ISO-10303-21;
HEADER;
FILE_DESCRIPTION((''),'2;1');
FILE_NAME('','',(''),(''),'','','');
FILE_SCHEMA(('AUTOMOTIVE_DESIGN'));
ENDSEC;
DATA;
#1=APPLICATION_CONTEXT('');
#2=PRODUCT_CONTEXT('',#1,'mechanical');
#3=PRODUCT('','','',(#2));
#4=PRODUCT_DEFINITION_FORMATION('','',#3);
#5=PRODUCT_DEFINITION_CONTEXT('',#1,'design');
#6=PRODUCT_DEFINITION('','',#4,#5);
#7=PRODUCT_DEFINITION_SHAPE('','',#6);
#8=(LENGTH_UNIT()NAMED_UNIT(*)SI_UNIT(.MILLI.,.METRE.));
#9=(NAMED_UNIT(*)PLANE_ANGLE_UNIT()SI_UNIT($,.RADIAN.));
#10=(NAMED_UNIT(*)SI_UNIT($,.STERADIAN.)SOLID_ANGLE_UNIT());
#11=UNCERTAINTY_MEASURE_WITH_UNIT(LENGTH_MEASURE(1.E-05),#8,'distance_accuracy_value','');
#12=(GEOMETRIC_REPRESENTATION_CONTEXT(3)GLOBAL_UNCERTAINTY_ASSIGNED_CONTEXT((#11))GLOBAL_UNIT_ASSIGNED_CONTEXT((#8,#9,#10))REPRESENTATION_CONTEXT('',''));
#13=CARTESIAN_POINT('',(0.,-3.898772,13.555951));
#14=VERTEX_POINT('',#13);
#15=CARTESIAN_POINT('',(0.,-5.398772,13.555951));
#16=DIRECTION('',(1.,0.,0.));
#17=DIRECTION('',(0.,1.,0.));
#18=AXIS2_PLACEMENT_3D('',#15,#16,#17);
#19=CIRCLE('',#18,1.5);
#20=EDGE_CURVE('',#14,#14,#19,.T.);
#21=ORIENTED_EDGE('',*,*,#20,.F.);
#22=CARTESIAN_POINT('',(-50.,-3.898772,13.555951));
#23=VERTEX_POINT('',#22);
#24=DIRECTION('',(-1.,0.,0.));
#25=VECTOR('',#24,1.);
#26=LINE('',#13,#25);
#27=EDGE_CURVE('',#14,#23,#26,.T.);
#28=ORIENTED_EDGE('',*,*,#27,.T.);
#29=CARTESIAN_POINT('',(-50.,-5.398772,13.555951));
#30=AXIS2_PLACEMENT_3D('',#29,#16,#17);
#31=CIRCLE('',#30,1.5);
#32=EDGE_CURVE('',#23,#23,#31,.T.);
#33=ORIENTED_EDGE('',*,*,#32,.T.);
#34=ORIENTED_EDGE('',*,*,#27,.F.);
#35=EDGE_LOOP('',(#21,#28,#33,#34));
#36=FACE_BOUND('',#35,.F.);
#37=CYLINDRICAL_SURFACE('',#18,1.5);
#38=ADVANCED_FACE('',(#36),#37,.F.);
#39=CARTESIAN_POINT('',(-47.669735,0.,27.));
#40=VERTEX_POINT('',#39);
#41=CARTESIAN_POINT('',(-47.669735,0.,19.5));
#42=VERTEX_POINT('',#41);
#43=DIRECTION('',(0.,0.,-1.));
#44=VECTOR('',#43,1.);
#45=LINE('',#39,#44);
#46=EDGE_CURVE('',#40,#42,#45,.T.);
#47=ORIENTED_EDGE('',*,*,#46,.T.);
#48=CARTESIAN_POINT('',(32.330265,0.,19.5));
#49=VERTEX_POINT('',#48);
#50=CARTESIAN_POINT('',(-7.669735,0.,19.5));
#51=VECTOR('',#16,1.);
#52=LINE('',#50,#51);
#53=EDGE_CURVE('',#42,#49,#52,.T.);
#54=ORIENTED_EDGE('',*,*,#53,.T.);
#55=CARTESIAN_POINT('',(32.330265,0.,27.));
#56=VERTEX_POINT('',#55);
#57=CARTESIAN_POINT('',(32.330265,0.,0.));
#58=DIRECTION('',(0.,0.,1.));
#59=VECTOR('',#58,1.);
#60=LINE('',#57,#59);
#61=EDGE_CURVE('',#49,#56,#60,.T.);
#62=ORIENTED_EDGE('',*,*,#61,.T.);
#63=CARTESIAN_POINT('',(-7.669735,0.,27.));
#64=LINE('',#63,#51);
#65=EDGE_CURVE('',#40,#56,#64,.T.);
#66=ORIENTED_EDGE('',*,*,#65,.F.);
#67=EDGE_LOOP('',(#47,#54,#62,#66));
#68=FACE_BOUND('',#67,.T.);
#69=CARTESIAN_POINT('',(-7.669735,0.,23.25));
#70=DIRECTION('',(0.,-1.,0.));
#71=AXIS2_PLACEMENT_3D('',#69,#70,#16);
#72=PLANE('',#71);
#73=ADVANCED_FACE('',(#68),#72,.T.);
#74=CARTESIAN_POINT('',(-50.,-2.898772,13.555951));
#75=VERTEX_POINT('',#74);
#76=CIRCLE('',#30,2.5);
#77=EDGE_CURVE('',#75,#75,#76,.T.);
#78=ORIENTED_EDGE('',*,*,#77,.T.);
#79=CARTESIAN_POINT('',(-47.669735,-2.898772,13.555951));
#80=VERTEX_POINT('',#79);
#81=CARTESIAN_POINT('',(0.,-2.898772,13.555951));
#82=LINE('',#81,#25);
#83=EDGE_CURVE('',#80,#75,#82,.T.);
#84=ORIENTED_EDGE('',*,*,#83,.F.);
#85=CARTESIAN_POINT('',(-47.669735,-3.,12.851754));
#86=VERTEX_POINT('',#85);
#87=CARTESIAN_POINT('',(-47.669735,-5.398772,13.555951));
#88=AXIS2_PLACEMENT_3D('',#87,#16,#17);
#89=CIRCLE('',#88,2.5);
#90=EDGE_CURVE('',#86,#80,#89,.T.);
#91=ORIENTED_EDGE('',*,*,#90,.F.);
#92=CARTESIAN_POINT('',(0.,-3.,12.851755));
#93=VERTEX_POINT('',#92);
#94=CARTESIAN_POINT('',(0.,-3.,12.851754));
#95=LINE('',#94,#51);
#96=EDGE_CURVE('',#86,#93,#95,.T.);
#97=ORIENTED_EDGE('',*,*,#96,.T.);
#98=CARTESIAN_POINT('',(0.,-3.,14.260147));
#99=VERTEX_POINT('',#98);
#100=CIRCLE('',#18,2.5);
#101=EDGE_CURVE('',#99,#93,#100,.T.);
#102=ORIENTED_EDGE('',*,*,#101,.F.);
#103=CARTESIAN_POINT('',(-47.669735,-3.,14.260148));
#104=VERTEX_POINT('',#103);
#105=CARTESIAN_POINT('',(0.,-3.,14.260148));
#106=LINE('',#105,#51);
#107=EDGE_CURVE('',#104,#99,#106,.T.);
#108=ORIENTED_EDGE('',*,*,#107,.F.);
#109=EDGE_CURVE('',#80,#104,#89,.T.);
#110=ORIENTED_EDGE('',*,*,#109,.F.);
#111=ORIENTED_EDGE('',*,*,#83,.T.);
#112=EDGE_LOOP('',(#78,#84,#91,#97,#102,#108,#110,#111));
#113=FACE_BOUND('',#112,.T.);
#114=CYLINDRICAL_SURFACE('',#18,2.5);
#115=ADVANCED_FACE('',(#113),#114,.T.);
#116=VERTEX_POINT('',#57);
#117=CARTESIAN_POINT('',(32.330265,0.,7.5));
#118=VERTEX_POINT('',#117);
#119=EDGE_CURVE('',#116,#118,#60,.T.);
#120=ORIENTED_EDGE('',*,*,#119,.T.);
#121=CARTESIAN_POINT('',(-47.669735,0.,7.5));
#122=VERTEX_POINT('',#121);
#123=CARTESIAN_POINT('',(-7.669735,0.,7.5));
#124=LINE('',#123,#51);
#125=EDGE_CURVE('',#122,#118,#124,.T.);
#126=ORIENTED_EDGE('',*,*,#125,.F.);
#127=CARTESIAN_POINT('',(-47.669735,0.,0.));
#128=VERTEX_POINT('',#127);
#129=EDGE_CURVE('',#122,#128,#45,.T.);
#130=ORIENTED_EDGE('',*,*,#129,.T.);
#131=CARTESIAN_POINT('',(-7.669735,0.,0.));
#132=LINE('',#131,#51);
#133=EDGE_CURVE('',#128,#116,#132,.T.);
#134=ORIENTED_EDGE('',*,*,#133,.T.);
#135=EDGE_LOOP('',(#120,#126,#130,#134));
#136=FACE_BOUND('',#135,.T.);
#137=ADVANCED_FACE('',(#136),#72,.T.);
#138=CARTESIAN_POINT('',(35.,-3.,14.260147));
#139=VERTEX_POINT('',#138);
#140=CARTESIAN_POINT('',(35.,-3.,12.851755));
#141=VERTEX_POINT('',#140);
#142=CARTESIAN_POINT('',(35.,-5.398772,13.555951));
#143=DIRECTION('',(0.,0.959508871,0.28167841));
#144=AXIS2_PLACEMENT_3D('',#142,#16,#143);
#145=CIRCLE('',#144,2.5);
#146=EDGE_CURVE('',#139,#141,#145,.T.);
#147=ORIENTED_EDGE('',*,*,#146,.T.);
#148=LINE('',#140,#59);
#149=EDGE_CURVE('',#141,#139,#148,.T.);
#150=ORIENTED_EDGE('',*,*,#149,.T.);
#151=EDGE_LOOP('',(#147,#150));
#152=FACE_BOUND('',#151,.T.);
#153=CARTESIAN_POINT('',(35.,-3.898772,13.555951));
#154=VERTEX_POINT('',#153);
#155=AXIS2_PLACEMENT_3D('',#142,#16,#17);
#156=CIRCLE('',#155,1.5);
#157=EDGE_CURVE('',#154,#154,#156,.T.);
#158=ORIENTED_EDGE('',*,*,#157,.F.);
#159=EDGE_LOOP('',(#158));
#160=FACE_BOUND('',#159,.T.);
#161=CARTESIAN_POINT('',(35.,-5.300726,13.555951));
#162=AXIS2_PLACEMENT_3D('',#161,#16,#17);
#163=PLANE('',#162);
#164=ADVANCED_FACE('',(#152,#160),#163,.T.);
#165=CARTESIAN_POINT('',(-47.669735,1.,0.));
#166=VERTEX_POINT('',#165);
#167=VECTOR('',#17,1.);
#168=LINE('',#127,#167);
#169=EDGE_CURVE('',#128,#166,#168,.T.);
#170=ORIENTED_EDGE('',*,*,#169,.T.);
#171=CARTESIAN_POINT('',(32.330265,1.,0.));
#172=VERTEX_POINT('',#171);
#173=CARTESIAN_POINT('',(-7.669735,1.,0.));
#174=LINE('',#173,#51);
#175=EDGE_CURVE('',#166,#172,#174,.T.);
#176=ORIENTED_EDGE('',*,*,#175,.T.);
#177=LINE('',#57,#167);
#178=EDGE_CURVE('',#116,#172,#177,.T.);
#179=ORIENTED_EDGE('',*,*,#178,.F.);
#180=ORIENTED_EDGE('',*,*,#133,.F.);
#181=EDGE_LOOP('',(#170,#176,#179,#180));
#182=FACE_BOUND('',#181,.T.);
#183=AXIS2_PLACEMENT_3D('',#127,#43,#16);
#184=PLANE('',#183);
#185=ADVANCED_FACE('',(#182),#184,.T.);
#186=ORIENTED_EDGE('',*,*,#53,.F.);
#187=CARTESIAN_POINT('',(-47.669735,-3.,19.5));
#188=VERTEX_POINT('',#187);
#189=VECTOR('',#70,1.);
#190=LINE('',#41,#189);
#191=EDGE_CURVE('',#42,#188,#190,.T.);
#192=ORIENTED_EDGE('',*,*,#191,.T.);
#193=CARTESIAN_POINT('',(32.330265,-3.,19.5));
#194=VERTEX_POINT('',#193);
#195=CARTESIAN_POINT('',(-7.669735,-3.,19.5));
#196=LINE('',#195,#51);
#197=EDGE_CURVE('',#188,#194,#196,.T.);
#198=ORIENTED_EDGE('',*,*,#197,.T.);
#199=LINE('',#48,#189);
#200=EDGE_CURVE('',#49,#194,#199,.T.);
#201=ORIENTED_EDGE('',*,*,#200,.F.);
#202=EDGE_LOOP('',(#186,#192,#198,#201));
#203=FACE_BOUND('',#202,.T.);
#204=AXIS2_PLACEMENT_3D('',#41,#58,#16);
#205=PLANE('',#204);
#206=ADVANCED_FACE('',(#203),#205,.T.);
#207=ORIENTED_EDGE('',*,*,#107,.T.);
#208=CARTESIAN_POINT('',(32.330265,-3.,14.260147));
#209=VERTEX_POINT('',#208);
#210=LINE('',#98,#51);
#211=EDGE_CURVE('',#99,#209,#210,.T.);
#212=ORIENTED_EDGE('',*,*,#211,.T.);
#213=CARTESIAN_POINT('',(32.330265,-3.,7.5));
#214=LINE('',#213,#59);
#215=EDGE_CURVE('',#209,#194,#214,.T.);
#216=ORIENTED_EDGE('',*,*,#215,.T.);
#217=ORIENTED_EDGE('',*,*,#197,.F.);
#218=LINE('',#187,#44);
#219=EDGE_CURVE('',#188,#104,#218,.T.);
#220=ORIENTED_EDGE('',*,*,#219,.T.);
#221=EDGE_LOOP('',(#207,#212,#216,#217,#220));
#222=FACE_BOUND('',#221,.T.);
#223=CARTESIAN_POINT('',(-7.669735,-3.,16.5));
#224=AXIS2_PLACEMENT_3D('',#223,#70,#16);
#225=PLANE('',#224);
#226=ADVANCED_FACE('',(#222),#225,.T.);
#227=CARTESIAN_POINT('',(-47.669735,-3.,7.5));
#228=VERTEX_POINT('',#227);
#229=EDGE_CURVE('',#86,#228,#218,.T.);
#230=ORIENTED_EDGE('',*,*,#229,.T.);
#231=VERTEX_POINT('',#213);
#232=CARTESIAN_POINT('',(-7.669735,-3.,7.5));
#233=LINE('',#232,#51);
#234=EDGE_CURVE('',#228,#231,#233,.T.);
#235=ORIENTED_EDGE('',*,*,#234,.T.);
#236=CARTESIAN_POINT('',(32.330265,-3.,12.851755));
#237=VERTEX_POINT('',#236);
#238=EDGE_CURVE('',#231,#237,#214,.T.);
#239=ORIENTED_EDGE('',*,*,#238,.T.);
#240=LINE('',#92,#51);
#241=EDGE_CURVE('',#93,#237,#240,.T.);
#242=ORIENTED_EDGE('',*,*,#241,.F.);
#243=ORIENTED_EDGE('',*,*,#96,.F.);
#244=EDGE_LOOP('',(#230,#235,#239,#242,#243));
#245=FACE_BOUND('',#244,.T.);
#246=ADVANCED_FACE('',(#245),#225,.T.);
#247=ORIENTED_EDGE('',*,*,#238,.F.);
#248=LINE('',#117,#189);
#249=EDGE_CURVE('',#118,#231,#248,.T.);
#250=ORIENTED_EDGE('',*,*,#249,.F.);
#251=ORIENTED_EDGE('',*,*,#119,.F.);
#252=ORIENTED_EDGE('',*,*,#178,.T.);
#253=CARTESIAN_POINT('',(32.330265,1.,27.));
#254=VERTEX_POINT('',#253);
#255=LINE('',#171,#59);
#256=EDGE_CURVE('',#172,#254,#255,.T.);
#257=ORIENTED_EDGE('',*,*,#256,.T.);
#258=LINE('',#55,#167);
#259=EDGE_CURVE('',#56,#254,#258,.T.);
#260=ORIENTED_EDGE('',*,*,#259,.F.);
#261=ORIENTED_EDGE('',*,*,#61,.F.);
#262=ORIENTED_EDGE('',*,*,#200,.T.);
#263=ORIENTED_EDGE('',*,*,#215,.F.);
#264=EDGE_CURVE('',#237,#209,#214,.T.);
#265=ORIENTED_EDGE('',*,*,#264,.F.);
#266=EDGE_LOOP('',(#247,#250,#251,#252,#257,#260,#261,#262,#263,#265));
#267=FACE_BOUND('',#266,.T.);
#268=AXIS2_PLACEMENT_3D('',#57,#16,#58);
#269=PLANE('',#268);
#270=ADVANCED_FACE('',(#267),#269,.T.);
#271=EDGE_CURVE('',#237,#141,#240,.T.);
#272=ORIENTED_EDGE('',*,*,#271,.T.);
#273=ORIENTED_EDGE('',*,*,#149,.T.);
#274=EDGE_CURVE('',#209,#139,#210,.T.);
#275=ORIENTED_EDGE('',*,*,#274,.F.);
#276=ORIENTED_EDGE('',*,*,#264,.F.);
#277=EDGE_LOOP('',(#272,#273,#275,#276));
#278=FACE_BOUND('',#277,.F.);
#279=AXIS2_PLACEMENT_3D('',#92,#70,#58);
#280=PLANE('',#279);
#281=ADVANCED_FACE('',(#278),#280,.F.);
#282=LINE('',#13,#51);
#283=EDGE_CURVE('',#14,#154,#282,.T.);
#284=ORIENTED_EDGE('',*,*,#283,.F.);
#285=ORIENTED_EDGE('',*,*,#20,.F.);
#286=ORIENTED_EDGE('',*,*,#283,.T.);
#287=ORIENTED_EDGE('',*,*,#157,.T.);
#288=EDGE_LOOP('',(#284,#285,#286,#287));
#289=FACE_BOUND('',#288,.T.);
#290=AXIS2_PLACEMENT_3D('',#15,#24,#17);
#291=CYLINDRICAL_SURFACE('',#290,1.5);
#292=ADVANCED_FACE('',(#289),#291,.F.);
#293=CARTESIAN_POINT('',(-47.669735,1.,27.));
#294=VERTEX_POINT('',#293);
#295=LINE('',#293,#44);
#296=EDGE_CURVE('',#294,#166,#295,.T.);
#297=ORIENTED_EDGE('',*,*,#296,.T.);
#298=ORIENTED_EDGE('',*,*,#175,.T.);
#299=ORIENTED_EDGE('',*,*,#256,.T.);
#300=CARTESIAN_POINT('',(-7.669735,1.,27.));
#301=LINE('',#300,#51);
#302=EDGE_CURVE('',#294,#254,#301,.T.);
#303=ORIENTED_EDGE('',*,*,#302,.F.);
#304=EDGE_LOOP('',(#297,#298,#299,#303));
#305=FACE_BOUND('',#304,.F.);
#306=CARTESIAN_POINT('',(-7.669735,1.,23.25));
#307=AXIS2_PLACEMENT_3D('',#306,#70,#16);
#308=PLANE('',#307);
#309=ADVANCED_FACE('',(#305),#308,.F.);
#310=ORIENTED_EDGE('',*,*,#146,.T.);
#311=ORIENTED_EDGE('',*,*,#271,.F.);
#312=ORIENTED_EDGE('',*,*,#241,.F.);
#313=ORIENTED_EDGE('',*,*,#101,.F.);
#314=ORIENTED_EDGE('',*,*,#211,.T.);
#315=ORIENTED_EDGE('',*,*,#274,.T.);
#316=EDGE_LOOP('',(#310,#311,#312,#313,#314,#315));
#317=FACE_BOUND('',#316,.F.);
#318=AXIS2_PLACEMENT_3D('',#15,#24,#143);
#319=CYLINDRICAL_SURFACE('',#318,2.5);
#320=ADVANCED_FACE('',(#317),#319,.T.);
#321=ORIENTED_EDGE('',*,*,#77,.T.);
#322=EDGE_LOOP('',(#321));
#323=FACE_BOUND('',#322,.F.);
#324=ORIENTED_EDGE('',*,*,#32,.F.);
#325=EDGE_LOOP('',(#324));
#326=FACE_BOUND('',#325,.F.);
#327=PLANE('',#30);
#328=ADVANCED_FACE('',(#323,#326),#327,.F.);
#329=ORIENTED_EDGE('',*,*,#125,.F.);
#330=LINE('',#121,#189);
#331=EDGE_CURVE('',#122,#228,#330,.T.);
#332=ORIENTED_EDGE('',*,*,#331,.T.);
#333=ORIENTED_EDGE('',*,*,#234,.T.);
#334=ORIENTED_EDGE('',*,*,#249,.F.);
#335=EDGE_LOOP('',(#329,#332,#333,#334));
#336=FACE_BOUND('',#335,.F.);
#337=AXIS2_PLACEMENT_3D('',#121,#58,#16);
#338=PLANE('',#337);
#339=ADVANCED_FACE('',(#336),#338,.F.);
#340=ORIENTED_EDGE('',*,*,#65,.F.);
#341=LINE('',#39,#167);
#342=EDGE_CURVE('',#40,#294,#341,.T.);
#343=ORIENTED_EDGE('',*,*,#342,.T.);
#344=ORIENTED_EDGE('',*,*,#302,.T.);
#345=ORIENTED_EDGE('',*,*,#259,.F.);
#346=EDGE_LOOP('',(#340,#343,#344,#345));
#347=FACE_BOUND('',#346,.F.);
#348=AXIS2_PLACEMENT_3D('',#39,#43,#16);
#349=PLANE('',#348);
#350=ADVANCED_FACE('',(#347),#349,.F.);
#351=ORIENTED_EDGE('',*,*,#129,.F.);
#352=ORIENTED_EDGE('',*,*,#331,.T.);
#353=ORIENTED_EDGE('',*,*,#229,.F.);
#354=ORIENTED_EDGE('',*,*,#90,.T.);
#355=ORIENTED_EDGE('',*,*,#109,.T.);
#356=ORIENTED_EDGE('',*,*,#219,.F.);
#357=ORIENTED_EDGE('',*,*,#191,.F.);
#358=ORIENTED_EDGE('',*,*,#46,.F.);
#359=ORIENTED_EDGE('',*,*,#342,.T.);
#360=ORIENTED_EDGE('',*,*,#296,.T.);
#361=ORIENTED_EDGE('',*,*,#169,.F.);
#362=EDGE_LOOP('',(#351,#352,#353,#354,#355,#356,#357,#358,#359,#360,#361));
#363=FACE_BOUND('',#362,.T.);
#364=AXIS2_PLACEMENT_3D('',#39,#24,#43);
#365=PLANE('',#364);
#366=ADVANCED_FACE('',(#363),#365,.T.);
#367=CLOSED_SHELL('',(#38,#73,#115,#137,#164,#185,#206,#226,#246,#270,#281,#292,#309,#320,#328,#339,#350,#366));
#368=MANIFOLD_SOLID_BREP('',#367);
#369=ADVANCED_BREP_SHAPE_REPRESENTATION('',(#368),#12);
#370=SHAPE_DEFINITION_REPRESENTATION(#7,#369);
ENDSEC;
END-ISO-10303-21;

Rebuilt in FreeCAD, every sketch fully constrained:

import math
import FreeCAD as App
import Part
import Sketcher
from FreeCAD import Vector
Q = App.Units.Quantity


def add_polygon(sketch, points):
    """Adds a closed chain of lines whose ends are joined by coincident constraints."""
    first, n = sketch.GeometryCount, len(points)
    for a, b in zip(points, points[1:] + points[:1]):
        sketch.addGeometry(Part.LineSegment(App.Vector(*a, 0), App.Vector(*b, 0)), False)
    for i in range(n):
        sketch.addConstraint(Sketcher.Constraint("Coincident", first + i, 2, first + (i + 1) % n, 1))

doc = App.newDocument("Part")
body = doc.addObject("PartDesign::Body", "Body")

# Sketch on XZ plane
sketch1 = body.newObject("Sketcher::SketchObject", "Sketch")
sketch1.AttachmentSupport = (doc.getObject("XZ_Plane"), [""])
sketch1.MapMode = "FlatFace"
add_polygon(sketch1, [(-48, 20), (-48, 8), (32, 8), (32, 20)])  # lines 0-3
sketch1.addConstraint(Sketcher.Constraint("Vertical", 0))
sketch1.addConstraint(Sketcher.Constraint("Horizontal", 1))
sketch1.addConstraint(Sketcher.Constraint("Vertical", 2))
sketch1.addConstraint(Sketcher.Constraint("Horizontal", 3))
sketch1.addConstraint(Sketcher.Constraint("DistanceX", 1, 1, 1, 2, Q("80 mm")))
sketch1.addConstraint(Sketcher.Constraint("DistanceY", 0, 2, 0, 1, Q("12 mm")))
sketch1.addConstraint(Sketcher.Constraint("DistanceY", -1, 1, 0, 2, Q("7.5 mm")))
sketch1.addConstraint(Sketcher.Constraint("DistanceX", 0, 2, -1, 1, Q("47.669735 mm")))
pad1 = body.newObject("PartDesign::Pad", "Pad")
pad1.Profile = sketch1
pad1.Length = 3

# Sketch on XZ plane
sketch2 = body.newObject("Sketcher::SketchObject", "Sketch001")
sketch2.AttachmentSupport = (doc.getObject("XZ_Plane"), [""])
sketch2.MapMode = "FlatFace"
add_polygon(sketch2, [(-48, 27), (-48, 0), (32, 0), (32, 27)])  # lines 0-3
sketch2.addConstraint(Sketcher.Constraint("Vertical", 0))
sketch2.addConstraint(Sketcher.Constraint("Horizontal", 1))
sketch2.addConstraint(Sketcher.Constraint("Vertical", 2))
sketch2.addConstraint(Sketcher.Constraint("Horizontal", 3))
sketch2.addConstraint(Sketcher.Constraint("PointOnObject", 0, 2, -1))
sketch2.addConstraint(Sketcher.Constraint("DistanceX", 1, 1, 1, 2, Q("80 mm")))
sketch2.addConstraint(Sketcher.Constraint("DistanceY", 0, 2, 0, 1, Q("27 mm")))
sketch2.addConstraint(Sketcher.Constraint("DistanceX", 0, 2, -1, 1, Q("47.669735 mm")))
pad2 = body.newObject("PartDesign::Pad", "Pad001")
pad2.Profile = sketch2
pad2.Length = 1
pad2.Reversed = True

# Sketch on YZ plane
sketch3 = body.newObject("Sketcher::SketchObject", "Sketch002")
sketch3.AttachmentSupport = (doc.getObject("YZ_Plane"), [""])
sketch3.MapMode = "FlatFace"
sketch3.addGeometry(Part.Circle(Vector(-5.4, 13.6, 0), Vector(0, 0, 1), 2.5), False)
sketch3.addGeometry(Part.Circle(Vector(-5.4, 13.6, 0), Vector(0, 0, 1), 1.5), False)
sketch3.addConstraint(Sketcher.Constraint("Coincident", 1, 3, 0, 3))
sketch3.addConstraint(Sketcher.Constraint("Diameter", 0, Q("5 mm")))
sketch3.addConstraint(Sketcher.Constraint("Diameter", 1, Q("3 mm")))
sketch3.addConstraint(Sketcher.Constraint("DistanceY", -1, 1, 0, 3, Q("13.555951 mm")))
sketch3.addConstraint(Sketcher.Constraint("DistanceX", 0, 3, -1, 1, Q("5.398772 mm")))
pad3 = body.newObject("PartDesign::Pad", "Pad002")
pad3.Profile = sketch3
pad3.Length = 50
pad3.Reversed = True

# Sketch on YZ plane
sketch4 = body.newObject("Sketcher::SketchObject", "Sketch003")
sketch4.AttachmentSupport = (doc.getObject("YZ_Plane"), [""])
sketch4.MapMode = "FlatFace"
sketch4.addGeometry(Part.LineSegment(Vector(-3, 12.9, 0), Vector(-3, 14.3, 0)), False)
sketch4.addGeometry(Part.ArcOfCircle(Part.Circle(Vector(-5.4, 13.6, 0), Vector(0, 0, 1), 2.5), math.radians(16), math.radians(344)), False)
sketch4.addGeometry(Part.Circle(Vector(-5.4, 13.6, 0), Vector(0, 0, 1), 1.5), False)
sketch4.addConstraint(Sketcher.Constraint("Coincident", 0, 1, 1, 2))
sketch4.addConstraint(Sketcher.Constraint("Coincident", 1, 1, 0, 2))
sketch4.addConstraint(Sketcher.Constraint("Vertical", 0))
sketch4.addConstraint(Sketcher.Constraint("Coincident", 2, 3, 1, 3))
sketch4.addConstraint(Sketcher.Constraint("Diameter", 2, Q("3 mm")))
sketch4.addConstraint(Sketcher.Constraint("Radius", 1, Q("2.5 mm")))
sketch4.addConstraint(Sketcher.Constraint("DistanceX", 0, 1, -1, 1, Q("3 mm")))
sketch4.addConstraint(Sketcher.Constraint("DistanceY", 0, 1, 0, 2, Q("1.408392 mm")))
sketch4.addConstraint(Sketcher.Constraint("DistanceY", -1, 1, 1, 3, Q("13.555951 mm")))
pad4 = body.newObject("PartDesign::Pad", "Pad003")
pad4.Profile = sketch4
pad4.Length = 35

doc.recompute()
